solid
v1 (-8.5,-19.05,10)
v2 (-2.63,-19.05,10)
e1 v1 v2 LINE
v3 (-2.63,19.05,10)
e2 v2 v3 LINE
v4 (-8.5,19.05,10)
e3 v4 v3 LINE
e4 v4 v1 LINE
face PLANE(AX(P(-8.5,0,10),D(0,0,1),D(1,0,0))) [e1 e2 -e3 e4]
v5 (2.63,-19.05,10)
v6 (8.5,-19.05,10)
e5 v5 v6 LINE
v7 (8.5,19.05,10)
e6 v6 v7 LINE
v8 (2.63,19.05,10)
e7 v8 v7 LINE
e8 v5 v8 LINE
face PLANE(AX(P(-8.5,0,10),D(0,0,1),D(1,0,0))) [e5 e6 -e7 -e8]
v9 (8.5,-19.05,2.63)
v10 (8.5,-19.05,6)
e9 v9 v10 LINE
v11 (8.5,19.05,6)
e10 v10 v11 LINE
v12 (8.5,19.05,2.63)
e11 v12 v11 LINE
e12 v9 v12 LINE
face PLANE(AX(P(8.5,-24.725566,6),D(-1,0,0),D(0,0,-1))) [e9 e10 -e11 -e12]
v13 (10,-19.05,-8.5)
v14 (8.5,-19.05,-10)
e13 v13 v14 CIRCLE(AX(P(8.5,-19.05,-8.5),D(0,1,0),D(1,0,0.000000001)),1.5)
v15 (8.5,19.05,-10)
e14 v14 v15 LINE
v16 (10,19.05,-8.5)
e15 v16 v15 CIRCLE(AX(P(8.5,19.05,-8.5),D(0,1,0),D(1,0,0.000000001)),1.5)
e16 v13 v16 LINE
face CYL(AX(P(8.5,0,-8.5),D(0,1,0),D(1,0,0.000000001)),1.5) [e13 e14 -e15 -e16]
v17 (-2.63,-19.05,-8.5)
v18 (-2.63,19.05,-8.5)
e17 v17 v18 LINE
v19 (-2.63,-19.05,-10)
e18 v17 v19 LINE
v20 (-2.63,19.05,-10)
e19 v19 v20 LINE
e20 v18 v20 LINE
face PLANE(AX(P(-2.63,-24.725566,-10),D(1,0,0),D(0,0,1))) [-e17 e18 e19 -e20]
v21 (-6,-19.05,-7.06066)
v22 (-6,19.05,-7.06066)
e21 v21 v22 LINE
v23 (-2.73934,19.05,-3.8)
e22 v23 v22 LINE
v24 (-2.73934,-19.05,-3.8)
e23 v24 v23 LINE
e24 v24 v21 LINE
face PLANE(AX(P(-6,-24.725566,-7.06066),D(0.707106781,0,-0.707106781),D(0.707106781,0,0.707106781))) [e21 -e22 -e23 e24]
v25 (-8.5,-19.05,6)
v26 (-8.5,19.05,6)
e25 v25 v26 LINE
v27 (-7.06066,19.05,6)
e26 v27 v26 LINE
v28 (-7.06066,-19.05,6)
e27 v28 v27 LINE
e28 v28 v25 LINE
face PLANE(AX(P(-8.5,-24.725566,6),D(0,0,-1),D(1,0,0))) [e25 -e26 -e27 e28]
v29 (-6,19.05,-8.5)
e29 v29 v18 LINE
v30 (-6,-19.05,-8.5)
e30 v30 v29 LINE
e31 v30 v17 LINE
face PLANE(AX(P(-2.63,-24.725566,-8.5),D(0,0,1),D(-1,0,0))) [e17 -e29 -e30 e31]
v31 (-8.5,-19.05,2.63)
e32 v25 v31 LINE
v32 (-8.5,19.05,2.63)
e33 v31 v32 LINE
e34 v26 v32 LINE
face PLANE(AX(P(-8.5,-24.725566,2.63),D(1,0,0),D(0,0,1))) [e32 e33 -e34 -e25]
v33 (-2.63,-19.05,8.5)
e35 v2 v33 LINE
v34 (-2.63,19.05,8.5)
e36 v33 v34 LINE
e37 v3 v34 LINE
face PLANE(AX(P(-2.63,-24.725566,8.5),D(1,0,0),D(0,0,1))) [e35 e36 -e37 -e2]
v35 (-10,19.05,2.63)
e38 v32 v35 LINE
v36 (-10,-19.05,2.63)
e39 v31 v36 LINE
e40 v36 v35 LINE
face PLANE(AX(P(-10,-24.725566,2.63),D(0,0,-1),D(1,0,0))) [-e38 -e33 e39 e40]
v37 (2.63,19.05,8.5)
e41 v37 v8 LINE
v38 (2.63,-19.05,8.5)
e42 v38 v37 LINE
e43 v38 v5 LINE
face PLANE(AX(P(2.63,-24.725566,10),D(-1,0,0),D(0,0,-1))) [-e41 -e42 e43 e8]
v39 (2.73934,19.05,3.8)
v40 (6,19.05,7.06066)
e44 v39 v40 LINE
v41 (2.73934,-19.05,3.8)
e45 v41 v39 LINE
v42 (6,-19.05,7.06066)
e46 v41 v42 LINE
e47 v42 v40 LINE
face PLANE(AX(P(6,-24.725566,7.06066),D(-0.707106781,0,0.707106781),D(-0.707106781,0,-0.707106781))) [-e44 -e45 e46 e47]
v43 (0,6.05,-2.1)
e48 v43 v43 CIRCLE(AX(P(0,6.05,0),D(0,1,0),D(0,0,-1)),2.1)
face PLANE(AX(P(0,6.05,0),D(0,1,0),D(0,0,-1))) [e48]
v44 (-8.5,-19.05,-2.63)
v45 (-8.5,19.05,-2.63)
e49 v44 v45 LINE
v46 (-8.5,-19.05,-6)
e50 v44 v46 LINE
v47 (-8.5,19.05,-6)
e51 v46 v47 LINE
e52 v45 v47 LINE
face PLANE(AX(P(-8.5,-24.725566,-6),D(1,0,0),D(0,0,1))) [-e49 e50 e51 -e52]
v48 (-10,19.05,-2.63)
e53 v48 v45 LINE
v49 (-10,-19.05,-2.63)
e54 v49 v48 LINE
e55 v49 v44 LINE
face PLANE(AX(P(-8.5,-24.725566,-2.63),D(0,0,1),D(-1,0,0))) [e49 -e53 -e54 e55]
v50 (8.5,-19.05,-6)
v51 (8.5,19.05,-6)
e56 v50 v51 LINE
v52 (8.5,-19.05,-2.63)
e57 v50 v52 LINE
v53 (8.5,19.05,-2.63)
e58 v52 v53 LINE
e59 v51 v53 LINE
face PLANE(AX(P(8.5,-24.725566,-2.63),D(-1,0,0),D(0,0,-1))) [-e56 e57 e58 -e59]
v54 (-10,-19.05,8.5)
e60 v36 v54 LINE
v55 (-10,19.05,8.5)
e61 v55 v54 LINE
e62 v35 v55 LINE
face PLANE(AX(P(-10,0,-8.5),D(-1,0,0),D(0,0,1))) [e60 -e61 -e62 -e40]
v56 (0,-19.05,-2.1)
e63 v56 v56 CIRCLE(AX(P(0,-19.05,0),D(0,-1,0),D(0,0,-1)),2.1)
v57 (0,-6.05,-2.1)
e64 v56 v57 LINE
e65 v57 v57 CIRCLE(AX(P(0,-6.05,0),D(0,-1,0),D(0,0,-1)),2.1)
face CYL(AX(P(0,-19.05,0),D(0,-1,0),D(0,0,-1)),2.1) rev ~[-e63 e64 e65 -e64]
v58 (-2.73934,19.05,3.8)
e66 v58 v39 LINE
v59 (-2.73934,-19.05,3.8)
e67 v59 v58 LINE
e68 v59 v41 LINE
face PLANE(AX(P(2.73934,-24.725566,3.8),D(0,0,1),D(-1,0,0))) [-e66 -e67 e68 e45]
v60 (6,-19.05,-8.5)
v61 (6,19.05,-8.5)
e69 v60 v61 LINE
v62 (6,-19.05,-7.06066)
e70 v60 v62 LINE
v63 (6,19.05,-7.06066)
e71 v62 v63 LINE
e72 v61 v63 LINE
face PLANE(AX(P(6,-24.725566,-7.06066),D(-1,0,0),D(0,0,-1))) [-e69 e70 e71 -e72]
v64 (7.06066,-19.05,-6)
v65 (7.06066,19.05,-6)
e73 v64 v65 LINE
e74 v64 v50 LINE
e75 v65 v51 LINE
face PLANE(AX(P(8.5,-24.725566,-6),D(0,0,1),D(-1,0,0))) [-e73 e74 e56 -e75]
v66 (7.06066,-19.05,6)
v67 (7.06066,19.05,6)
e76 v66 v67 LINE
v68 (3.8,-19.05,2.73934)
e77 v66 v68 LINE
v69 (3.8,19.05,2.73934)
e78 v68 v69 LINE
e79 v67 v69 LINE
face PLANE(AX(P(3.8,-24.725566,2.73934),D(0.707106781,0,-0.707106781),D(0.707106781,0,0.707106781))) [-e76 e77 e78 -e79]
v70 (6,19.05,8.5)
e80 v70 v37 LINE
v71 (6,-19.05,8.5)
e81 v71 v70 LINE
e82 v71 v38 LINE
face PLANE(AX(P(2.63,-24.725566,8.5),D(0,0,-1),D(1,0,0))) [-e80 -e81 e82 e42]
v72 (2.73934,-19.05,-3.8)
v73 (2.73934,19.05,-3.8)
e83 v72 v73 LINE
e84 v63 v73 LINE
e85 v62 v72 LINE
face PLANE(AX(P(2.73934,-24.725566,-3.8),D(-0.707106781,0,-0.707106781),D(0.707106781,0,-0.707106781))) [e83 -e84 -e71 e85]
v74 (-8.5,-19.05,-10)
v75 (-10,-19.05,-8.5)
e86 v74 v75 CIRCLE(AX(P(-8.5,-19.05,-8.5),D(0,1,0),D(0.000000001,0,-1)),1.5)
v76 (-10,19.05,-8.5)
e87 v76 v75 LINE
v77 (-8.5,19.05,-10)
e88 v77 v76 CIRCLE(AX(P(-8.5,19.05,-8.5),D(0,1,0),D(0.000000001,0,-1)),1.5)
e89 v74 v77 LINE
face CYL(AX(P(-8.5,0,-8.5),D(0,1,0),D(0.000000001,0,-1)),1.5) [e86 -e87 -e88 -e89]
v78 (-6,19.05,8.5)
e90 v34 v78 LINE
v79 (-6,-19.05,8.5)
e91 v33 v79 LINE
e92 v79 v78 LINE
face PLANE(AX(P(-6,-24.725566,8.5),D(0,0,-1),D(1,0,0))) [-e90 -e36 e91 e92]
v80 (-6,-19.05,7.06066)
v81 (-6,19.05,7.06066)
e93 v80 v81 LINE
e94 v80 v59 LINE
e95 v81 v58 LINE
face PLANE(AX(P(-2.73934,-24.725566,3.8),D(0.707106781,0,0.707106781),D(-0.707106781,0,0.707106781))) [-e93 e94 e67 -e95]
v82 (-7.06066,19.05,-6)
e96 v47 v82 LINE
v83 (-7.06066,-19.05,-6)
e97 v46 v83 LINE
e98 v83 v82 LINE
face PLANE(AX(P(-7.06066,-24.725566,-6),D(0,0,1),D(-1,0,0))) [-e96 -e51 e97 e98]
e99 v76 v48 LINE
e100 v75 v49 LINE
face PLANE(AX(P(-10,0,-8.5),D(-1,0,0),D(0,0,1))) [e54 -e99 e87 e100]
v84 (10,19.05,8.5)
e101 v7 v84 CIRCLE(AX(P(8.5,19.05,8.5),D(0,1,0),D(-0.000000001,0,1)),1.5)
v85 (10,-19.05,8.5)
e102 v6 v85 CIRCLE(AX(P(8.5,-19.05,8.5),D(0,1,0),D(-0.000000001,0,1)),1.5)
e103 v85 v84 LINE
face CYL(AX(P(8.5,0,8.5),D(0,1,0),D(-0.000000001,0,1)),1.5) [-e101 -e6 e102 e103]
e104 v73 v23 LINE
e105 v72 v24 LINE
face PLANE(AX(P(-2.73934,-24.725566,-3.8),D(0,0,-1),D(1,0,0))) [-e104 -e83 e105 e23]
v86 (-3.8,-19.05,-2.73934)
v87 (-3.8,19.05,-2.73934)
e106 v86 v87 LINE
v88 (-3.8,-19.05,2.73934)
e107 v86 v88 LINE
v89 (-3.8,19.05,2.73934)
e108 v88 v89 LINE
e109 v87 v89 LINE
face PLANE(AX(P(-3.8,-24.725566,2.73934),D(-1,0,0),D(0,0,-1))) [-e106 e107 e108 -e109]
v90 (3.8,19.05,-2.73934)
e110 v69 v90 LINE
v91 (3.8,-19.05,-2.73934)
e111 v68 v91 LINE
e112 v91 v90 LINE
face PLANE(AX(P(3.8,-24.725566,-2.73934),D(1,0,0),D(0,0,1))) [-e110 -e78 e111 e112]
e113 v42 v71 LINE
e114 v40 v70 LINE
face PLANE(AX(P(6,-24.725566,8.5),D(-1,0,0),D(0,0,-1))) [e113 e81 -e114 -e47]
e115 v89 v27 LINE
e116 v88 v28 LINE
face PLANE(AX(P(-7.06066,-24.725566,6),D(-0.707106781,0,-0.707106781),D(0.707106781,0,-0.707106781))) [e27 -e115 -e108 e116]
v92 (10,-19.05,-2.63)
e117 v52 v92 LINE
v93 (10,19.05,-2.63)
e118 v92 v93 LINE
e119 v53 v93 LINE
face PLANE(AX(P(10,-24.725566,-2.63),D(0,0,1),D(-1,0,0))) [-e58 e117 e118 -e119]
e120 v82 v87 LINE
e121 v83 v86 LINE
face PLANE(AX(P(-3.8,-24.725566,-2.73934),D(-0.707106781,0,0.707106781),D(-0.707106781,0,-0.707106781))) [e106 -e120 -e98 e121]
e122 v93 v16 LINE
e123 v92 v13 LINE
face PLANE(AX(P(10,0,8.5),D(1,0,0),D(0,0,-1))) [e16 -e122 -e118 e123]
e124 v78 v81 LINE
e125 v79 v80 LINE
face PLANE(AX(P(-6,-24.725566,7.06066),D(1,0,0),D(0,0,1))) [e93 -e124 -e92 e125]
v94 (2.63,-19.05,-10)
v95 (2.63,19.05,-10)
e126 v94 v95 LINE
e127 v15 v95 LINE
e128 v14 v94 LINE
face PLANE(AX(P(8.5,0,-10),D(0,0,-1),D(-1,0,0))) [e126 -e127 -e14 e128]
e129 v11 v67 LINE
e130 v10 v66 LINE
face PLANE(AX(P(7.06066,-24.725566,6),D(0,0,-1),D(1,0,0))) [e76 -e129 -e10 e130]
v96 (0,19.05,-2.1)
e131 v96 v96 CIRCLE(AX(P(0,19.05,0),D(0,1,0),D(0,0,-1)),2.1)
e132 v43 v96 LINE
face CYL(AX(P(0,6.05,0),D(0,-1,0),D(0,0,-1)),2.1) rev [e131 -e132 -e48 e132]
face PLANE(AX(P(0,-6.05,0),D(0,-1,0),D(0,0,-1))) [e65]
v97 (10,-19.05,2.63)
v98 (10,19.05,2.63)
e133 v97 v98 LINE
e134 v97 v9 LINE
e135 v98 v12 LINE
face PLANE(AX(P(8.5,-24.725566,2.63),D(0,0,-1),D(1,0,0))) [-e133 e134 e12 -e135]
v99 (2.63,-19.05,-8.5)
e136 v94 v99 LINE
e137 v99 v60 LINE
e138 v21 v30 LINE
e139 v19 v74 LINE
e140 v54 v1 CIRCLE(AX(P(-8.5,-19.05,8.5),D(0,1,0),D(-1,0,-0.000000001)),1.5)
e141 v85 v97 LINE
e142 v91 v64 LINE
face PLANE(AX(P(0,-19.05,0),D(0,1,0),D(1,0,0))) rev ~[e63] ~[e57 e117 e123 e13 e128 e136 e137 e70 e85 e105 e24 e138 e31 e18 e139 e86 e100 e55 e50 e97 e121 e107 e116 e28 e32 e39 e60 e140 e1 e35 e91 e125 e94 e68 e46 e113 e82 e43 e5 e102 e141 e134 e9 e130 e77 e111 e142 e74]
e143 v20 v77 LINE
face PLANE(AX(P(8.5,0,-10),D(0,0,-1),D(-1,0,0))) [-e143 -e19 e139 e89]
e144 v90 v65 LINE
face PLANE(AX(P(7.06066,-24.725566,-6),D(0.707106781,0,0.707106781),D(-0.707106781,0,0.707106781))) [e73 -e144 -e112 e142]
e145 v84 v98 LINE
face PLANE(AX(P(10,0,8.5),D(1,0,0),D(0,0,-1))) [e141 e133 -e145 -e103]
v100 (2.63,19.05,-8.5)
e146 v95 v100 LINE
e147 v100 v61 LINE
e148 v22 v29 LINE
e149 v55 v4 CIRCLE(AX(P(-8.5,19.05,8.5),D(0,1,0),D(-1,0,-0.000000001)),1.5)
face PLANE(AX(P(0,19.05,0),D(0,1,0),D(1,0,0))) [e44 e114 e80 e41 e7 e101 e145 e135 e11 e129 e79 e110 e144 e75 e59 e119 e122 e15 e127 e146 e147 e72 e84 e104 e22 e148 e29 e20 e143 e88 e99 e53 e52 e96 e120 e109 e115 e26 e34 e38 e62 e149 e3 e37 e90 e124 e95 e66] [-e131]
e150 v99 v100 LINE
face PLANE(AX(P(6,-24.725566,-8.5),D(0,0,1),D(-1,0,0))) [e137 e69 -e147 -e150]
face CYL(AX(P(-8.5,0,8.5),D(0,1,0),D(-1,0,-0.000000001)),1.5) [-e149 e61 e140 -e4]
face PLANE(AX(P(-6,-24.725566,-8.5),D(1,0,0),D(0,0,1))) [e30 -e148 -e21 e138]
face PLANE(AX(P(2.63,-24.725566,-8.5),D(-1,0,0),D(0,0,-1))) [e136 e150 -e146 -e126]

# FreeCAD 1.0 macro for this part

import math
import FreeCAD as App
import Part
import Sketcher

V = App.Vector
Q = App.Units.Quantity


def add_polygon(sketch, points):
    """Adds a closed chain of lines whose ends are joined by coincident constraints."""
    first, n = sketch.GeometryCount, len(points)
    for a, b in zip(points, points[1:] + points[:1]):
        sketch.addGeometry(Part.LineSegment(App.Vector(*a, 0), App.Vector(*b, 0)), False)
    for i in range(n):
        sketch.addConstraint(Sketcher.Constraint("Coincident", first + i, 2, first + (i + 1) % n, 1))

doc = App.newDocument("Part")
body = doc.addObject("PartDesign::Body", "Body")

sketch1 = doc.addObject("Sketcher::SketchObject", "Sketch")
body.addObject(sketch1)
sketch1.AttachmentSupport = (doc.XZ_Plane, [""])
sketch1.MapMode = "FlatFace"
sketch1.addGeometry(Part.LineSegment(V(-8.5, 10, 0), V(8.5, 10, 0)), False)
sketch1.addGeometry(Part.ArcOfCircle(Part.Circle(V(8.5, 8.5, 0), V(0, 0, 1), 1.5), math.radians(0), math.radians(90)), False)
sketch1.addGeometry(Part.LineSegment(V(10, 8.5, 0), V(10, -8.5, 0)), False)
sketch1.addGeometry(Part.ArcOfCircle(Part.Circle(V(8.5, -8.5, 0), V(0, 0, 1), 1.5), math.radians(-90), math.radians(0)), False)
sketch1.addGeometry(Part.LineSegment(V(8.5, -10, 0), V(-8.5, -10, 0)), False)
sketch1.addGeometry(Part.ArcOfCircle(Part.Circle(V(-8.5, -8.5, 0), V(0, 0, 1), 1.5), math.radians(180), math.radians(270)), False)
sketch1.addGeometry(Part.LineSegment(V(-10, -8.5, 0), V(-10, 8.5, 0)), False)
sketch1.addGeometry(Part.ArcOfCircle(Part.Circle(V(-8.5, 8.5, 0), V(0, 0, 1), 1.5), math.radians(90), math.radians(180)), False)
sketch1.addConstraint(Sketcher.Constraint("Tangent", 0, 2, 1, 2))
sketch1.addConstraint(Sketcher.Constraint("Tangent", 1, 1, 2, 1))
sketch1.addConstraint(Sketcher.Constraint("Tangent", 2, 2, 3, 2))
sketch1.addConstraint(Sketcher.Constraint("Tangent", 3, 1, 4, 1))
sketch1.addConstraint(Sketcher.Constraint("Tangent", 4, 2, 5, 2))
sketch1.addConstraint(Sketcher.Constraint("Tangent", 5, 1, 6, 1))
sketch1.addConstraint(Sketcher.Constraint("Tangent", 6, 2, 7, 2))
sketch1.addConstraint(Sketcher.Constraint("Tangent", 7, 1, 0, 1))
sketch1.addConstraint(Sketcher.Constraint("Horizontal", 0))
sketch1.addConstraint(Sketcher.Constraint("Vertical", 2))
sketch1.addConstraint(Sketcher.Constraint("Horizontal", 4))
sketch1.addConstraint(Sketcher.Constraint("Vertical", 6))
sketch1.addConstraint(Sketcher.Constraint("Equal", 1, 3))
sketch1.addConstraint(Sketcher.Constraint("Equal", 3, 5))
sketch1.addConstraint(Sketcher.Constraint("Equal", 5, 7))
sketch1.addConstraint(Sketcher.Constraint("Symmetric", 1, 3, 5, 3, -1, 1))
sketch1.addConstraint(Sketcher.Constraint("Equal", 4, 2))
sketch1.addConstraint(Sketcher.Constraint("Radius", 1, Q("1.5 mm")))
sketch1.addConstraint(Sketcher.Constraint("DistanceX", 0, 1, 0, 2, Q("17 mm")))
pad1 = doc.addObject("PartDesign::Pad", "Pad")
body.addObject(pad1)
pad1.Profile = sketch1
pad1.Length = 38.1
pad1.Midplane = True

sketch2 = doc.addObject("Sketcher::SketchObject", "Sketch001")
body.addObject(sketch2)
sketch2.AttachmentSupport = (doc.XZ_Plane, [""])
sketch2.MapMode = "FlatFace"
add_polygon(sketch2, [(2.63, -10), (-2.63, -10), (-2.63, -8.5), (-6, -8.5), (-6, -7.06066), (-2.73934, -3.8), (2.73934, -3.8), (6, -7.06066), (6, -8.5), (2.63, -8.5)])
add_polygon(sketch2, [(10, 2.63), (10, -2.63), (8.5, -2.63), (8.5, -6), (7.06066, -6), (3.8, -2.73934), (3.8, 2.73934), (7.06066, 6), (8.5, 6), (8.5, 2.63)])
add_polygon(sketch2, [(-2.63, 10), (2.63, 10), (2.63, 8.5), (6, 8.5), (6, 7.06066), (2.73934, 3.8), (-2.73934, 3.8), (-6, 7.06066), (-6, 8.5), (-2.63, 8.5)])
add_polygon(sketch2, [(-10, -2.63), (-10, 2.63), (-8.5, 2.63), (-8.5, 6), (-7.06066, 6), (-3.8, 2.73934), (-3.8, -2.73934), (-7.06066, -6), (-8.5, -6), (-8.5, -2.63)])
sketch2.addConstraint(Sketcher.Constraint("Horizontal", 0))
sketch2.addConstraint(Sketcher.Constraint("Vertical", 1))
sketch2.addConstraint(Sketcher.Constraint("Horizontal", 2))
sketch2.addConstraint(Sketcher.Constraint("Vertical", 3))
sketch2.addConstraint(Sketcher.Constraint("Horizontal", 5))
sketch2.addConstraint(Sketcher.Constraint("Vertical", 7))
sketch2.addConstraint(Sketcher.Constraint("Horizontal", 8))
sketch2.addConstraint(Sketcher.Constraint("Vertical", 9))
sketch2.addConstraint(Sketcher.Constraint("Vertical", 10))
sketch2.addConstraint(Sketcher.Constraint("Horizontal", 11))
sketch2.addConstraint(Sketcher.Constraint("Vertical", 12))
sketch2.addConstraint(Sketcher.Constraint("Horizontal", 13))
sketch2.addConstraint(Sketcher.Constraint("Vertical", 15))
sketch2.addConstraint(Sketcher.Constraint("Horizontal", 17))
sketch2.addConstraint(Sketcher.Constraint("Vertical", 18))
sketch2.addConstraint(Sketcher.Constraint("Horizontal", 19))
sketch2.addConstraint(Sketcher.Constraint("Horizontal", 20))
sketch2.addConstraint(Sketcher.Constraint("Vertical", 21))
sketch2.addConstraint(Sketcher.Constraint("Horizontal", 22))
sketch2.addConstraint(Sketcher.Constraint("Vertical", 23))
sketch2.addConstraint(Sketcher.Constraint("Horizontal", 25))
sketch2.addConstraint(Sketcher.Constraint("Vertical", 27))
sketch2.addConstraint(Sketcher.Constraint("Horizontal", 28))
sketch2.addConstraint(Sketcher.Constraint("Vertical", 29))
sketch2.addConstraint(Sketcher.Constraint("Vertical", 30))
sketch2.addConstraint(Sketcher.Constraint("Horizontal", 31))
sketch2.addConstraint(Sketcher.Constraint("Vertical", 32))
sketch2.addConstraint(Sketcher.Constraint("Horizontal", 33))
sketch2.addConstraint(Sketcher.Constraint("Vertical", 35))
sketch2.addConstraint(Sketcher.Constraint("Horizontal", 37))
sketch2.addConstraint(Sketcher.Constraint("Vertical", 38))
sketch2.addConstraint(Sketcher.Constraint("Horizontal", 39))
sketch2.addConstraint(Sketcher.Constraint("Symmetric", 0, 2, 20, 2, -1, 1))
sketch2.addConstraint(Sketcher.Constraint("Symmetric", 2, 2, 22, 2, -1, 1))
sketch2.addConstraint(Sketcher.Constraint("Symmetric", 4, 2, 24, 2, -1, 1))
sketch2.addConstraint(Sketcher.Constraint("Symmetric", 6, 2, 26, 2, -1, 1))
sketch2.addConstraint(Sketcher.Constraint("Symmetric", 8, 2, 28, 2, -1, 1))
sketch2.addConstraint(Sketcher.Constraint("Symmetric", 10, 2, 30, 2, -1, 1))
sketch2.addConstraint(Sketcher.Constraint("Symmetric", 12, 2, 32, 2, -1, 1))
sketch2.addConstraint(Sketcher.Constraint("Symmetric", 14, 2, 34, 2, -1, 1))
sketch2.addConstraint(Sketcher.Constraint("Symmetric", 16, 2, 36, 2, -1, 1))
sketch2.addConstraint(Sketcher.Constraint("Symmetric", 18, 2, 38, 2, -1, 1))
sketch2.addConstraint(Sketcher.Constraint("Symmetric", 3, 2, 6, 2, -2))
sketch2.addConstraint(Sketcher.Constraint("Symmetric", 1, 2, 8, 2, -2))
sketch2.addConstraint(Sketcher.Constraint("Symmetric", 18, 2, 31, 2, -2))
sketch2.addConstraint(Sketcher.Constraint("Symmetric", 16, 2, 33, 2, -2))
sketch2.addConstraint(Sketcher.Constraint("Perpendicular", 4, 6))
sketch2.addConstraint(Sketcher.Constraint("Parallel", 6, 14))
sketch2.addConstraint(Sketcher.Constraint("Perpendicular", 14, 16))
sketch2.addConstraint(Sketcher.Constraint("Parallel", 16, 24))
sketch2.addConstraint(Sketcher.Constraint("Perpendicular", 24, 26))
sketch2.addConstraint(Sketcher.Constraint("Parallel", 26, 34))
sketch2.addConstraint(Sketcher.Constraint("Perpendicular", 34, 36))
sketch2.addConstraint(Sketcher.Constraint("Horizontal", 15, 2, 34, 2))
sketch2.addConstraint(Sketcher.Constraint("Equal", 39, 1))
sketch2.addConstraint(Sketcher.Constraint("Equal", 37, 3))
sketch2.addConstraint(Sketcher.Constraint("Equal", 20, 10))
sketch2.addConstraint(Sketcher.Constraint("Equal", 28, 12))
sketch2.addConstraint(Sketcher.Constraint("Equal", 25, 15))
sketch2.addConstraint(Sketcher.Constraint("DistanceX", 11, 2, 11, 1, Q("1.5 mm")))
sketch2.addConstraint(Sketcher.Constraint("DistanceY", 0, 2, -1, 1, Q("10 mm")))
sketch2.addConstraint(Sketcher.Constraint("DistanceX", 2, 2, -1, 1, Q("6 mm")))
sketch2.addConstraint(Sketcher.Constraint("DistanceX", -1, 1, 10, 2, Q("10 mm")))
sketch2.addConstraint(Sketcher.Constraint("DistanceX", 0, 2, 0, 1, Q("5.26 mm")))
sketch2.addConstraint(Sketcher.Constraint("DistanceY", 4, 2, -1, 1, Q("3.8 mm")))
sketch2.addConstraint(Sketcher.Constraint("DistanceX", 5, 1, 5, 2, Q("5.47868 mm")))
pocket1 = doc.addObject("PartDesign::Pocket", "Pocket")
body.addObject(pocket1)
pocket1.Profile = sketch2
pocket1.Type = "ThroughAll"
pocket1.Midplane = True

sketch3 = doc.addObject("Sketcher::SketchObject", "Sketch002")
body.addObject(sketch3)
sketch3.AttachmentSupport = (doc.XZ_Plane, [""])
sketch3.MapMode = "FlatFace"
sketch3.AttachmentOffset = App.Placement(V(0, 0, 19.05), App.Rotation())
sketch3.addGeometry(Part.Circle(V(0, 0, 0), V(0, 0, 1), 2.1), False)
sketch3.addConstraint(Sketcher.Constraint("Coincident", 0, 3, -1, 1))
sketch3.addConstraint(Sketcher.Constraint("Diameter", 0, Q("4.2 mm")))
pocket2 = doc.addObject("PartDesign::Pocket", "Pocket001")
body.addObject(pocket2)
pocket2.Profile = sketch3
pocket2.Length = 13

sketch4 = doc.addObject("Sketcher::SketchObject", "Sketch003")
body.addObject(sketch4)
sketch4.AttachmentSupport = (doc.XZ_Plane, [""])
sketch4.MapMode = "FlatFace"
sketch4.AttachmentOffset = App.Placement(V(0, 0, -6.05), App.Rotation())
sketch4.addGeometry(Part.Circle(V(0, 0, 0), V(0, 0, 1), 2.1), False)
sketch4.addConstraint(Sketcher.Constraint("Coincident", 0, 3, -1, 1))
sketch4.addConstraint(Sketcher.Constraint("Diameter", 0, Q("4.2 mm")))
pocket3 = doc.addObject("PartDesign::Pocket", "Pocket002")
body.addObject(pocket3)
pocket3.Profile = sketch4
pocket3.Length = 13

doc.recompute()
